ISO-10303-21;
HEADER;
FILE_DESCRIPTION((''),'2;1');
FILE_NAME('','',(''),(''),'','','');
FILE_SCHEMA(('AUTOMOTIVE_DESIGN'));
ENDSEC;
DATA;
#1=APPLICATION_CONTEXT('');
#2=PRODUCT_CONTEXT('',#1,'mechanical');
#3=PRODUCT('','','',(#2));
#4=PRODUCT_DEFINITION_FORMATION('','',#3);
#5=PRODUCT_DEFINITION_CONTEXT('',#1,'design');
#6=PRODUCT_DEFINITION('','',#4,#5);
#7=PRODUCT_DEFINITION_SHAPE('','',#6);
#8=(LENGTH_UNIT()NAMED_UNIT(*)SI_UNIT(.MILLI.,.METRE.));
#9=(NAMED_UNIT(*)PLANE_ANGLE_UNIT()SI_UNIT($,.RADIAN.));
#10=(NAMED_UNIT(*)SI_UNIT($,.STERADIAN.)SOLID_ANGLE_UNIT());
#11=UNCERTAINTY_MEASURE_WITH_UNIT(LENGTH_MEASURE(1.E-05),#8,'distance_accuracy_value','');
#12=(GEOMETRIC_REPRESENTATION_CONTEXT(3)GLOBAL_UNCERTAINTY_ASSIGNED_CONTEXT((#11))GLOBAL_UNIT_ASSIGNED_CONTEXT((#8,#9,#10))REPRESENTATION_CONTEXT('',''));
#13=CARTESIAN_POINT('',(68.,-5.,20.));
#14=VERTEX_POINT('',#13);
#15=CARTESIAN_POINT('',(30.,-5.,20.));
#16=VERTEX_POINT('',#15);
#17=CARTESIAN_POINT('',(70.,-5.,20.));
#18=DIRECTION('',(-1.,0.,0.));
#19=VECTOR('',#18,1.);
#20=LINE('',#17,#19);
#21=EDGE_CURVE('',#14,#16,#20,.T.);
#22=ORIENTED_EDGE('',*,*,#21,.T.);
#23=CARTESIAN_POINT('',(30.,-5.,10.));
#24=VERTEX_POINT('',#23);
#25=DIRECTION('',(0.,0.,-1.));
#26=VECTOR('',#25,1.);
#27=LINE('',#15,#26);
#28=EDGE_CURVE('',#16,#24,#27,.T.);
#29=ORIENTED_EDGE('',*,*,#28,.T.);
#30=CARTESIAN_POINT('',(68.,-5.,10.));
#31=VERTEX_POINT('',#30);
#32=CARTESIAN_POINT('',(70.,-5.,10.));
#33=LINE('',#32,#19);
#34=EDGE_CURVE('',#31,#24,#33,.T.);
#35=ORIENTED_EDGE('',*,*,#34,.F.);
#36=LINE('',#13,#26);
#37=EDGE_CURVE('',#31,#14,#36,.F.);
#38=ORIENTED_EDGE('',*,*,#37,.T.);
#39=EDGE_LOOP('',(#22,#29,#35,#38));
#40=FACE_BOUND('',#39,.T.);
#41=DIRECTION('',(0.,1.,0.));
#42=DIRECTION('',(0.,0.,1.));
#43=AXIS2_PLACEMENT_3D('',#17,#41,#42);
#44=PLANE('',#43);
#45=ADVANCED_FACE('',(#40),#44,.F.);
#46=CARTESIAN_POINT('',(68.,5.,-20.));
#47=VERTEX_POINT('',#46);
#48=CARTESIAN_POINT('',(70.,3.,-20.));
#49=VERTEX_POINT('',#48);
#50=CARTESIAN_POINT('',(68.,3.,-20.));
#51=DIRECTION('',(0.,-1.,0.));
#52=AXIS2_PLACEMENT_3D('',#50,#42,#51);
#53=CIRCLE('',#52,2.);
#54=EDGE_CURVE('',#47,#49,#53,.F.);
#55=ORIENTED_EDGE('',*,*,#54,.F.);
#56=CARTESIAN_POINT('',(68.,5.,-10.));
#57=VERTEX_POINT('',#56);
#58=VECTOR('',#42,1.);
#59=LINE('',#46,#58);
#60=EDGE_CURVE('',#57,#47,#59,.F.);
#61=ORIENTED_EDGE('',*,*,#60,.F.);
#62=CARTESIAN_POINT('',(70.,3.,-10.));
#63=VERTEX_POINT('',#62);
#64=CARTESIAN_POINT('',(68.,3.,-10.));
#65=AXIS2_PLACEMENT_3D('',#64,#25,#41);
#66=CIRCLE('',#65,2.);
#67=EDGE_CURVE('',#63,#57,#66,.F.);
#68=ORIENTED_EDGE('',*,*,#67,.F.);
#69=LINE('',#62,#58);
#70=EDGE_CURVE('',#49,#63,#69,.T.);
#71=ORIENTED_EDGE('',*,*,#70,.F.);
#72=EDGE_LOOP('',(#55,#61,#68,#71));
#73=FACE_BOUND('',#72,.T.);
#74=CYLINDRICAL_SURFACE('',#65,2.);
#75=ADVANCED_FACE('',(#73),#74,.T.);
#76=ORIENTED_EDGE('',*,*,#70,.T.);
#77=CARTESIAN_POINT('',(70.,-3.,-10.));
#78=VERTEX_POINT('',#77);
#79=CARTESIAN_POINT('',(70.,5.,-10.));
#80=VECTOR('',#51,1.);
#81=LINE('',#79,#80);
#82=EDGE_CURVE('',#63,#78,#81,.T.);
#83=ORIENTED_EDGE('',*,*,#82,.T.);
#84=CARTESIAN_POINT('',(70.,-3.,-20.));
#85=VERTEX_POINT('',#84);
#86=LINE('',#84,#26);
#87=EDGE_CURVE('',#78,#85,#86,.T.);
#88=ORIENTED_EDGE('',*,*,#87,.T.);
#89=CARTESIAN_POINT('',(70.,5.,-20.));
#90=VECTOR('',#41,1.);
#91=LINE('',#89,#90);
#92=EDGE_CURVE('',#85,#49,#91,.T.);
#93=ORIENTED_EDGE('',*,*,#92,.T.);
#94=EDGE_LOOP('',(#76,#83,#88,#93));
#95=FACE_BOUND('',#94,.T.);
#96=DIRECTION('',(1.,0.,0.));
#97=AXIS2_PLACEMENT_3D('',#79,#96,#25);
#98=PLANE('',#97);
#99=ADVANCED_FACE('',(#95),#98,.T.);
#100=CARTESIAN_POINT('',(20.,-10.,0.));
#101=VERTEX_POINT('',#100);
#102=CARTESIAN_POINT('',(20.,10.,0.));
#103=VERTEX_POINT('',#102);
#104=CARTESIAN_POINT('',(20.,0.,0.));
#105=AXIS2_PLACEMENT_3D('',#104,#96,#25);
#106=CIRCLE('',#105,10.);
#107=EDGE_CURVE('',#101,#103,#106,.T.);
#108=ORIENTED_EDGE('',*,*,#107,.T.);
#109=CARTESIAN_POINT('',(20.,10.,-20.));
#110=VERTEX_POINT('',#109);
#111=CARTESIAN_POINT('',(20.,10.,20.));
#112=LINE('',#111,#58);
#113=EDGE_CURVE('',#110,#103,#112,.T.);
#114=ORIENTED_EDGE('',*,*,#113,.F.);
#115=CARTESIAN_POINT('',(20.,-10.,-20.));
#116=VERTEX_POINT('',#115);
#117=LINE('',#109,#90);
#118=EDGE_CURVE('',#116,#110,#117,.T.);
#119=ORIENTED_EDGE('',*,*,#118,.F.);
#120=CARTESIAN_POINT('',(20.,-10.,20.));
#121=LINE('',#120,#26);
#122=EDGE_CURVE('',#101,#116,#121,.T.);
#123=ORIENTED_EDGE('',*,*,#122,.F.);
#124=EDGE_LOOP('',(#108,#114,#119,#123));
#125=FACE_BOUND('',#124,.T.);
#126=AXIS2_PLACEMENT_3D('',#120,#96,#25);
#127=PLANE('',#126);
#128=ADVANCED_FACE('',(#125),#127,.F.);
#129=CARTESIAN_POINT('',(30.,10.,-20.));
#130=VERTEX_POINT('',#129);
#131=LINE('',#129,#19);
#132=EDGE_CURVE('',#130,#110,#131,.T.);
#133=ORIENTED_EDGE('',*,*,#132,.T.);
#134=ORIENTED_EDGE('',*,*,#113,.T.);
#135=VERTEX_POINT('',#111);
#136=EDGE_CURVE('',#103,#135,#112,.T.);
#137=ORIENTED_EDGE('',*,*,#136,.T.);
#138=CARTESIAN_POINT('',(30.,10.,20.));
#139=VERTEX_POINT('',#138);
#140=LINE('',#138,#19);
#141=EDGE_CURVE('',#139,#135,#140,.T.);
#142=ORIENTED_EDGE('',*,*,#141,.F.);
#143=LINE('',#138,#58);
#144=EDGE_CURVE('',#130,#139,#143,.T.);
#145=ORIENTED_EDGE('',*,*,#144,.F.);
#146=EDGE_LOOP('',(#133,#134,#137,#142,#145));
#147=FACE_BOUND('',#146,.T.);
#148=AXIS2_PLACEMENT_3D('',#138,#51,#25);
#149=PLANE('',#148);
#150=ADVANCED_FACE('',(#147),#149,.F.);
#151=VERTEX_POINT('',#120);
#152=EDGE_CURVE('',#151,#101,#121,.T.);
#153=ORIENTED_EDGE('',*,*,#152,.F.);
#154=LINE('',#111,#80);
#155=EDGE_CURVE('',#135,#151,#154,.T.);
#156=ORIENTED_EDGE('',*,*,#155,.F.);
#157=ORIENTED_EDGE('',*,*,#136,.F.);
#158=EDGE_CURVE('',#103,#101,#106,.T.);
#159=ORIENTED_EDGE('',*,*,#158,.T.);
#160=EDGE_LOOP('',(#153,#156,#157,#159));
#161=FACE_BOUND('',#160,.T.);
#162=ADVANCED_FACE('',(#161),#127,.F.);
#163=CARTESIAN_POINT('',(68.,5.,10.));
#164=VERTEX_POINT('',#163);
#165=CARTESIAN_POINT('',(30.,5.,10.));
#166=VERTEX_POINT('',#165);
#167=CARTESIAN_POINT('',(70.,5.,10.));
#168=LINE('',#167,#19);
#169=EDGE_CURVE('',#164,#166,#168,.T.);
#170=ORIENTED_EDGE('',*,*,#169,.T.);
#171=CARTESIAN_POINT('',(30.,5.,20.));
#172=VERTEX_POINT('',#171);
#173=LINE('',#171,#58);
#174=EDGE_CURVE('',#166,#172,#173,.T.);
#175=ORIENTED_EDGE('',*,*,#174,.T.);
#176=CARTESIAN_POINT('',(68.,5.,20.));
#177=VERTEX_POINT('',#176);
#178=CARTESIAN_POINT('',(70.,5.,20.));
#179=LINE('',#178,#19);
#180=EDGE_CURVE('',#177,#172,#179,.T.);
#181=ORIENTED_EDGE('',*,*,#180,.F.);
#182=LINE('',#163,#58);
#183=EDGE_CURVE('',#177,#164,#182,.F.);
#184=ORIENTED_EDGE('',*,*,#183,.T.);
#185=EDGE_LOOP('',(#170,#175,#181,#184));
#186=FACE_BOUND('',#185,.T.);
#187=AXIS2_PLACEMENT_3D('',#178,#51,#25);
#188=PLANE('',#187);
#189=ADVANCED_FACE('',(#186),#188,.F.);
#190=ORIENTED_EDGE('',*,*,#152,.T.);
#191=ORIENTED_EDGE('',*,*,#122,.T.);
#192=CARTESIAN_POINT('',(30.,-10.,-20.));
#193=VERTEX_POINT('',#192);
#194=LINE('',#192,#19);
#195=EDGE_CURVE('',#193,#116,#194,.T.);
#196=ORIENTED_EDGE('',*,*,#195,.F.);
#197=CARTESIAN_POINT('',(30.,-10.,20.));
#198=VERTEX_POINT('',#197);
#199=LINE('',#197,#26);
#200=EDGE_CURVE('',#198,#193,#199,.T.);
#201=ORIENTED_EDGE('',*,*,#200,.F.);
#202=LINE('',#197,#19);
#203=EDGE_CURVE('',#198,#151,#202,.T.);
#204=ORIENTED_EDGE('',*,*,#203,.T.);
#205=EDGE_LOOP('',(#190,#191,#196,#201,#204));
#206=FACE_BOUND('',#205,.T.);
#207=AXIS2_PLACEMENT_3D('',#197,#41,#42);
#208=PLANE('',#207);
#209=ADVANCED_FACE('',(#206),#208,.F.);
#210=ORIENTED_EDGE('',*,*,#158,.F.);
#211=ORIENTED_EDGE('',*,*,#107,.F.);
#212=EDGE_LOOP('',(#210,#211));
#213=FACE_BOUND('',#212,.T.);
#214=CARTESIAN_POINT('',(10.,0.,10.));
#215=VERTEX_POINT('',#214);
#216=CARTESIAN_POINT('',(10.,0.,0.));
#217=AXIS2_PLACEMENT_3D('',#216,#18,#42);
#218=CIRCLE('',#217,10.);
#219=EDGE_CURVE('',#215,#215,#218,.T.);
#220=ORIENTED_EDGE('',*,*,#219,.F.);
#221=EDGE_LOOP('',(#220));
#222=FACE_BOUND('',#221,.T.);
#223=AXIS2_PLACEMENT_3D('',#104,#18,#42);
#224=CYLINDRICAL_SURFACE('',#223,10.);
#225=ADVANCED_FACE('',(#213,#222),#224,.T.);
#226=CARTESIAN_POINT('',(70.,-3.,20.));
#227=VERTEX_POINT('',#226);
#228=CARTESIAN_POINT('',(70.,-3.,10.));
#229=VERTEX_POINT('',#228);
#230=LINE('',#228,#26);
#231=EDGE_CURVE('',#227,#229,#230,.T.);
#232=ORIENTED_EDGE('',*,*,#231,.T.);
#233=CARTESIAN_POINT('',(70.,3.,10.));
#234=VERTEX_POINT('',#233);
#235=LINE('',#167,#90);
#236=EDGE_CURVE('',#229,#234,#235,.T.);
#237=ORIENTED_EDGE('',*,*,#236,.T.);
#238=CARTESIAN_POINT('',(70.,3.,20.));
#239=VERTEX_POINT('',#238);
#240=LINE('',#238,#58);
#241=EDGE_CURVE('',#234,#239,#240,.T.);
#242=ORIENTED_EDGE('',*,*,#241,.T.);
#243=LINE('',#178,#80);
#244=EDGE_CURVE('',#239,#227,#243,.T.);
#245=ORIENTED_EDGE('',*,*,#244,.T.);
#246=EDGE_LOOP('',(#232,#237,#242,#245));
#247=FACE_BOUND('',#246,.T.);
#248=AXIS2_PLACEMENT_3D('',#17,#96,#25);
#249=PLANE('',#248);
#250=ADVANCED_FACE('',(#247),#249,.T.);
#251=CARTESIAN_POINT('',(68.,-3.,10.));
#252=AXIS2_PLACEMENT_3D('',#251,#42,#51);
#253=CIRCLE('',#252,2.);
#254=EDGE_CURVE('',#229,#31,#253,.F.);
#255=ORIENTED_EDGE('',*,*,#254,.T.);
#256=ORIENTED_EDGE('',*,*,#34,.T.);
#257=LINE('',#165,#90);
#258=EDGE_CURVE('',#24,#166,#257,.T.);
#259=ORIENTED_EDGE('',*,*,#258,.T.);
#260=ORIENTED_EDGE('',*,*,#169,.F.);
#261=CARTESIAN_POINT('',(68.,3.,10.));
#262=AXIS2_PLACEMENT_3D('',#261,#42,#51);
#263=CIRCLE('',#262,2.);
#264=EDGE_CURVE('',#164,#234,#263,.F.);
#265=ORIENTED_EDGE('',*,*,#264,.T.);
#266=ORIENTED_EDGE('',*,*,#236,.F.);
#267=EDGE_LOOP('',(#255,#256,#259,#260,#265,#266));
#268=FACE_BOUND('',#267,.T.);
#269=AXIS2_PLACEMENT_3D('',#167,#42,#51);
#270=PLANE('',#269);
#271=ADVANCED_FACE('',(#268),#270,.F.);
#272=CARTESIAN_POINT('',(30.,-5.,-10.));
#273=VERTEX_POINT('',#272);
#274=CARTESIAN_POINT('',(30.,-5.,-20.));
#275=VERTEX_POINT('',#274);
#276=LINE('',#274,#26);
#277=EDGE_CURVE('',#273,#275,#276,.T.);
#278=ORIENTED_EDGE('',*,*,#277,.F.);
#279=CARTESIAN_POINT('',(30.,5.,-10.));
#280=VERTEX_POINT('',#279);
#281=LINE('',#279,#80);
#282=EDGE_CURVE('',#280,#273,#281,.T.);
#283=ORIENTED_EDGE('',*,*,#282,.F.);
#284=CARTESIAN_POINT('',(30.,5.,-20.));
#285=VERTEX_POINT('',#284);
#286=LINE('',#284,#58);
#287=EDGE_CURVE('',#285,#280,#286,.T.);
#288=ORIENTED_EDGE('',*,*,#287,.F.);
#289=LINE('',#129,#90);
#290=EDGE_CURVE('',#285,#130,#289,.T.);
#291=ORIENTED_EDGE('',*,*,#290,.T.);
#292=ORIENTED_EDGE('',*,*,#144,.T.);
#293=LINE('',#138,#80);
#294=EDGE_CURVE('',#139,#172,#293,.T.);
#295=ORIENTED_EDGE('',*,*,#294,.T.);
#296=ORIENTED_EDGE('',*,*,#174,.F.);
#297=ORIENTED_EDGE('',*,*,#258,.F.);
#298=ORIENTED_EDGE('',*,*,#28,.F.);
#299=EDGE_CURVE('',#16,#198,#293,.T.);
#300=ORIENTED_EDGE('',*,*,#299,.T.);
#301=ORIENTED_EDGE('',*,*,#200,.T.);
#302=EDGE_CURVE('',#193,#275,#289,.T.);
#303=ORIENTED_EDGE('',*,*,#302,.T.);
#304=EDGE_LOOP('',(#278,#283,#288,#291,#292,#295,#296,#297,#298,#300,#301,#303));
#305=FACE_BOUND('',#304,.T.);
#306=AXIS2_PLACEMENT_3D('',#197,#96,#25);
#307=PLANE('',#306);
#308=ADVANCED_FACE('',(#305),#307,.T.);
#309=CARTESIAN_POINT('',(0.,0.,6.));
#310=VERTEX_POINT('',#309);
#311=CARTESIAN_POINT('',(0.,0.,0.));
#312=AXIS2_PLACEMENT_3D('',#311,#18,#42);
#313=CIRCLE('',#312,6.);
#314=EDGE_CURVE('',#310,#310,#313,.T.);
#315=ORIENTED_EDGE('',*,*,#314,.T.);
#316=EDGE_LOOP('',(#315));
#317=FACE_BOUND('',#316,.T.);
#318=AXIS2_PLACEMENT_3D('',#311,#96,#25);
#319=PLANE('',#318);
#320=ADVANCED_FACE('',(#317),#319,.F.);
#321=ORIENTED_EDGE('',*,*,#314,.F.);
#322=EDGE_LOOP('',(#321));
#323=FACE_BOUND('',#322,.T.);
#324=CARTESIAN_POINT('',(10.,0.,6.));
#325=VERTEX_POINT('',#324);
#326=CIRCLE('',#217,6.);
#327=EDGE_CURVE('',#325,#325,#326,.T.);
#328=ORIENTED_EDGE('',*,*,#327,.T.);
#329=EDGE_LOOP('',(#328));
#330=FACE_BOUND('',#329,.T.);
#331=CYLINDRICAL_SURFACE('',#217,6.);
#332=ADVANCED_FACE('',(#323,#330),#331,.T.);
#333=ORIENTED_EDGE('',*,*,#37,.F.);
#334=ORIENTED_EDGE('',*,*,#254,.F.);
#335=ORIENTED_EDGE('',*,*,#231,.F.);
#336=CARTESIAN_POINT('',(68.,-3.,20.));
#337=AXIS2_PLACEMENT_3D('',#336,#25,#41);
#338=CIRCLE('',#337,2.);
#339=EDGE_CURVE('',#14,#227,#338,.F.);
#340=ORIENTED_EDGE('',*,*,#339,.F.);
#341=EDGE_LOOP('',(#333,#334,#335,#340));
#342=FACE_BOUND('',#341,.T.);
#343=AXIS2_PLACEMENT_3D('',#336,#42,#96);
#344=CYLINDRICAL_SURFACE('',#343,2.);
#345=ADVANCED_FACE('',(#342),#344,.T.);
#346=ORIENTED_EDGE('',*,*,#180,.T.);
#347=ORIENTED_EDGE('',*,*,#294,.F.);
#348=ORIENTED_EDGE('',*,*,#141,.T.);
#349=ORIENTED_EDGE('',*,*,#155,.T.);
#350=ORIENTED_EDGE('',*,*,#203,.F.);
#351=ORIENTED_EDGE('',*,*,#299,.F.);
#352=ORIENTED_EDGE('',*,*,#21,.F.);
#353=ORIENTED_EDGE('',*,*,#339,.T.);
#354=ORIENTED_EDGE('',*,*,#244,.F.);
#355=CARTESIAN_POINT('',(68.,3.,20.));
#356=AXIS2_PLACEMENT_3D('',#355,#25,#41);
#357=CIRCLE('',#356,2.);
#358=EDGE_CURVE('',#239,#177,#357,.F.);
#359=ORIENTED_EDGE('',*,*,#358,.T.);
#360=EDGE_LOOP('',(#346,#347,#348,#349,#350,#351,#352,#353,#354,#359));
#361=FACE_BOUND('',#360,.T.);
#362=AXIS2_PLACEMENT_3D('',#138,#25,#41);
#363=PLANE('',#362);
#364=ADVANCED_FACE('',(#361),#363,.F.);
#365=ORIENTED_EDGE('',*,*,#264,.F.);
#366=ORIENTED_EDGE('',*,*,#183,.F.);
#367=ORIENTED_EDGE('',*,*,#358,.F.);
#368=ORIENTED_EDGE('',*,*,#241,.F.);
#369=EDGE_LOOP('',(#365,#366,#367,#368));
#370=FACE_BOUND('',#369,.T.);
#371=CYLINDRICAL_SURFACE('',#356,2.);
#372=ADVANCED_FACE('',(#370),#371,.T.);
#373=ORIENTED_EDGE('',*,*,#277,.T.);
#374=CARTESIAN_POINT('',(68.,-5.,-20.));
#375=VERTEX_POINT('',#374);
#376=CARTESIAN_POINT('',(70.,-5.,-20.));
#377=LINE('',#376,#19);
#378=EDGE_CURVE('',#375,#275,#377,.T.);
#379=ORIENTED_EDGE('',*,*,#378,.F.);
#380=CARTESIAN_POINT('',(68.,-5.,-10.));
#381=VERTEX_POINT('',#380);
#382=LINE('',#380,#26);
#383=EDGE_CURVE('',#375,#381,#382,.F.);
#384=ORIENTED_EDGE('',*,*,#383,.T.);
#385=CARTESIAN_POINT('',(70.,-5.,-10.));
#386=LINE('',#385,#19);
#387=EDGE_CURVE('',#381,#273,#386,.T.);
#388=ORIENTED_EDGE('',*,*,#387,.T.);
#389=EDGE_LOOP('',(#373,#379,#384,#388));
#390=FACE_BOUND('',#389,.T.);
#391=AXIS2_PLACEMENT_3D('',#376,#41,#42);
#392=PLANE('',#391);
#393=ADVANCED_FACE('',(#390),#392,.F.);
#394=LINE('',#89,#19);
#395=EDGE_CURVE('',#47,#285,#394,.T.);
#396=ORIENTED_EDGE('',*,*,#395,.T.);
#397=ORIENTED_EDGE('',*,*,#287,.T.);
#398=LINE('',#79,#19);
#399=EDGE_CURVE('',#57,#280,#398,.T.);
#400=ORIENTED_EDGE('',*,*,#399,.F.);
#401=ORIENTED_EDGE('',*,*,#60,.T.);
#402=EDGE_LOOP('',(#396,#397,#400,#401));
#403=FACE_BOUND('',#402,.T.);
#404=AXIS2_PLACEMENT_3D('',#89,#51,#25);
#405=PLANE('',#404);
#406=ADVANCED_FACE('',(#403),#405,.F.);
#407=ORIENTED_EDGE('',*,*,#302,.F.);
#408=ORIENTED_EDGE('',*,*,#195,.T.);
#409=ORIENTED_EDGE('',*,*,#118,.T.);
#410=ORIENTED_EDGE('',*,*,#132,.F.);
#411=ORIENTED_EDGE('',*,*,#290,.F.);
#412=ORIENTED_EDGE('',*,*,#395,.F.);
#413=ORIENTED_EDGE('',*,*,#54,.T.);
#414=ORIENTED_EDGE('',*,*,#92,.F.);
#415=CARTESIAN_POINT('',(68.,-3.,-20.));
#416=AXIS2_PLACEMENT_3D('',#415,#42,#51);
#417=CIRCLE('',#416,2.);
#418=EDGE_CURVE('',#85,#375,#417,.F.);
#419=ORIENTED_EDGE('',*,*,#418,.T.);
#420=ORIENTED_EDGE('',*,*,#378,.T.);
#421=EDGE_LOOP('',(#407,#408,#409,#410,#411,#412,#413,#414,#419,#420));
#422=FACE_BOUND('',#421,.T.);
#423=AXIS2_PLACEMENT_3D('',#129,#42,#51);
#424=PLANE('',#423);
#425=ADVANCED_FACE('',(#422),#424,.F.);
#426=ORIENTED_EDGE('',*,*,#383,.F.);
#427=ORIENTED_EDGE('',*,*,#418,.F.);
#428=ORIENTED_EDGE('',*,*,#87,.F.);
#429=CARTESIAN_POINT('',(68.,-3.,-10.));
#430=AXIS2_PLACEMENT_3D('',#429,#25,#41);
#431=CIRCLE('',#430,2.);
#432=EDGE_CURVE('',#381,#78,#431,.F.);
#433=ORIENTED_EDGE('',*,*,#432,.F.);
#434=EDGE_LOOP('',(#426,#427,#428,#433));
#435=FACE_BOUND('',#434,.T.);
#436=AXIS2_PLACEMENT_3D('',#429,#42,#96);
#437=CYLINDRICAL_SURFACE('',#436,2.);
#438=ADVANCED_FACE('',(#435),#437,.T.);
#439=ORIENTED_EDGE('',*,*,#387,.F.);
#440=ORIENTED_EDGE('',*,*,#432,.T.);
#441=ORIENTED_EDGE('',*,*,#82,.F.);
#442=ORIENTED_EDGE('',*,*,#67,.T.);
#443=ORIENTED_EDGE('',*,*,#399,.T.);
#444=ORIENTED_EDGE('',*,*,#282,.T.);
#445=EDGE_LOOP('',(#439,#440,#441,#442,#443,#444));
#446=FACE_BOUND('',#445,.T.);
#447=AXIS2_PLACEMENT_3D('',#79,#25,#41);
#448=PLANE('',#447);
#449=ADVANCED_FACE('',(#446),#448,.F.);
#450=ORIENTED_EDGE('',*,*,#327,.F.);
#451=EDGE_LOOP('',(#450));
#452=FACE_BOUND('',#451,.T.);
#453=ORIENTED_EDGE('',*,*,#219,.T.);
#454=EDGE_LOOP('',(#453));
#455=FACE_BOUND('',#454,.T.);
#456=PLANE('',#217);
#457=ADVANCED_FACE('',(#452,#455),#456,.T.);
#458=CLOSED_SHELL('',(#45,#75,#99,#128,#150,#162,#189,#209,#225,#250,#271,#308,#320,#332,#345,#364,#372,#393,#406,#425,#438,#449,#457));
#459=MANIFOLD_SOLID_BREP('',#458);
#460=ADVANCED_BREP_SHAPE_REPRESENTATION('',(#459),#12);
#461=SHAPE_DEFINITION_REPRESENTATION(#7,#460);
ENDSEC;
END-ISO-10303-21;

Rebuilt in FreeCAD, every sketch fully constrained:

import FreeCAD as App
import Part
import Sketcher

V = App.Vector


def edges_at(feature, points):
    """Names of the edges that pass closest to the given points."""
    edges = feature.Shape.Edges
    near = lambda p: min(range(len(edges)), key=lambda i: edges[i].distToShape(Part.Vertex(*p))[0])
    return sorted({f"Edge{near(p) + 1}" for p in points})


def add_polygon(sketch, points):
    """Adds a closed chain of lines whose ends are joined by coincident constraints."""
    first, n = sketch.GeometryCount, len(points)
    for a, b in zip(points, points[1:] + points[:1]):
        sketch.addGeometry(Part.LineSegment(App.Vector(*a, 0), App.Vector(*b, 0)), False)
    for i in range(n):
        sketch.addConstraint(Sketcher.Constraint("Coincident", first + i, 2, first + (i + 1) % n, 1))

doc = App.newDocument("Part")
body = doc.addObject("PartDesign::Body", "Body")

sketch1 = body.newObject("Sketcher::SketchObject", "Sketch")
sketch1.AttachmentSupport = (doc.getObject("YZ_Plane"), [""])
sketch1.MapMode = "FlatFace"
sketch1.addGeometry(Part.Circle(V(0, 0, 0), V(0, 0, 1), 10), False)
sketch1.addConstraint([
    Sketcher.Constraint("Coincident", 0, 3, -1, 1),
    Sketcher.Constraint("Diameter", 0, 20.0),
])
pad1 = body.newObject("PartDesign::Pad", "Pad")
pad1.Profile = sketch1
pad1.Length = 20

sketch2 = body.newObject("Sketcher::SketchObject", "Sketch001")
sketch2.AttachmentSupport = (doc.getObject("YZ_Plane"), [""])
sketch2.MapMode = "FlatFace"
add_polygon(sketch2, [(14.464, -14.464), (-14.464, -14.464), (-14.464, 14.464), (14.464, 14.464)])
sketch2.addGeometry(Part.Circle(V(0, 0, 0), V(0, 0, 1), 6), False)
sketch2.addConstraint([
    Sketcher.Constraint("Horizontal", 0),
    Sketcher.Constraint("Vertical", 1),
    Sketcher.Constraint("Horizontal", 2),
    Sketcher.Constraint("Vertical", 3),
    Sketcher.Constraint("Coincident", 4, 3, -1, 1),
    Sketcher.Constraint("Symmetric", 0, 2, 2, 2, -1, 1),
    Sketcher.Constraint("Equal", 2, 1),
    Sketcher.Constraint("Diameter", 4, 12.0),
    Sketcher.Constraint("DistanceX", 0, 2, 0, 1, 28.928),
])
pocket1 = body.newObject("PartDesign::Pocket", "Pocket")
pocket1.Profile = sketch2
pocket1.Length = 10
pocket1.Reversed = True

sketch3 = body.newObject("Sketcher::SketchObject", "Sketch002")
sketch3.AttachmentSupport = (doc.getObject("YZ_Plane"), [""])
sketch3.MapMode = "FlatFace"
sketch3.AttachmentOffset = App.Placement(V(0, 0, 20), App.Rotation())
add_polygon(sketch3, [(10, 20), (-10, 20), (-10, -20), (10, -20)])
sketch3.addConstraint([
    Sketcher.Constraint("Horizontal", 0),
    Sketcher.Constraint("Vertical", 1),
    Sketcher.Constraint("Horizontal", 2),
    Sketcher.Constraint("Vertical", 3),
    Sketcher.Constraint("Symmetric", 0, 2, 2, 2, -1, 1),
    Sketcher.Constraint("DistanceX", 0, 2, 0, 1, 20.0),
    Sketcher.Constraint("DistanceY", 1, 2, 1, 1, 40.0),
])
pad2 = body.newObject("PartDesign::Pad", "Pad001")
pad2.Profile = sketch3
pad2.Length = 10

sketch4 = body.newObject("Sketcher::SketchObject", "Sketch003")
sketch4.AttachmentSupport = (doc.getObject("YZ_Plane"), [""])
sketch4.MapMode = "FlatFace"
sketch4.AttachmentOffset = App.Placement(V(0, 0, 30), App.Rotation())
add_polygon(sketch4, [(5, 20), (-5, 20), (-5, 10), (5, 10)])
sketch4.addConstraint([
    Sketcher.Constraint("Horizontal", 0),
    Sketcher.Constraint("Vertical", 1),
    Sketcher.Constraint("Horizontal", 2),
    Sketcher.Constraint("Vertical", 3),
    Sketcher.Constraint("Equal", 2, 1),
    Sketcher.Constraint("DistanceX", 0, 2, 0, 1, 10.0),
    Sketcher.Constraint("DistanceX", 0, 2, -1, 1, 5.0),
    Sketcher.Constraint("DistanceY", -1, 1, 0, 2, 20.0),
])
pad3 = body.newObject("PartDesign::Pad", "Pad002")
pad3.Profile = sketch4
pad3.Length = 40

sketch5 = body.newObject("Sketcher::SketchObject", "Sketch004")
sketch5.AttachmentSupport = (doc.getObject("YZ_Plane"), [""])
sketch5.MapMode = "FlatFace"
sketch5.AttachmentOffset = App.Placement(V(0, 0, 30), App.Rotation())
add_polygon(sketch5, [(5, -10), (-5, -10), (-5, -20), (5, -20)])
sketch5.addConstraint([
    Sketcher.Constraint("Horizontal", 0),
    Sketcher.Constraint("Vertical", 1),
    Sketcher.Constraint("Horizontal", 2),
    Sketcher.Constraint("Vertical", 3),
    Sketcher.Constraint("Equal", 2, 1),
    Sketcher.Constraint("DistanceX", 0, 2, 0, 1, 10.0),
    Sketcher.Constraint("DistanceX", 0, 2, -1, 1, 5.0),
    Sketcher.Constraint("DistanceY", 0, 2, -1, 1, 10.0),
])
pad4 = body.newObject("PartDesign::Pad", "Pad003")
pad4.Profile = sketch5
pad4.Length = 40
doc.recompute()

fillet = body.newObject("PartDesign::Fillet", "Fillet")
fillet.Base = (pad4, edges_at(pad4, [
    (70, -5, -15),
    (70, 5, -15),
    (70, -5, 15),
    (70, 5, 15),
]))
fillet.Radius = 2

doc.recompute()
